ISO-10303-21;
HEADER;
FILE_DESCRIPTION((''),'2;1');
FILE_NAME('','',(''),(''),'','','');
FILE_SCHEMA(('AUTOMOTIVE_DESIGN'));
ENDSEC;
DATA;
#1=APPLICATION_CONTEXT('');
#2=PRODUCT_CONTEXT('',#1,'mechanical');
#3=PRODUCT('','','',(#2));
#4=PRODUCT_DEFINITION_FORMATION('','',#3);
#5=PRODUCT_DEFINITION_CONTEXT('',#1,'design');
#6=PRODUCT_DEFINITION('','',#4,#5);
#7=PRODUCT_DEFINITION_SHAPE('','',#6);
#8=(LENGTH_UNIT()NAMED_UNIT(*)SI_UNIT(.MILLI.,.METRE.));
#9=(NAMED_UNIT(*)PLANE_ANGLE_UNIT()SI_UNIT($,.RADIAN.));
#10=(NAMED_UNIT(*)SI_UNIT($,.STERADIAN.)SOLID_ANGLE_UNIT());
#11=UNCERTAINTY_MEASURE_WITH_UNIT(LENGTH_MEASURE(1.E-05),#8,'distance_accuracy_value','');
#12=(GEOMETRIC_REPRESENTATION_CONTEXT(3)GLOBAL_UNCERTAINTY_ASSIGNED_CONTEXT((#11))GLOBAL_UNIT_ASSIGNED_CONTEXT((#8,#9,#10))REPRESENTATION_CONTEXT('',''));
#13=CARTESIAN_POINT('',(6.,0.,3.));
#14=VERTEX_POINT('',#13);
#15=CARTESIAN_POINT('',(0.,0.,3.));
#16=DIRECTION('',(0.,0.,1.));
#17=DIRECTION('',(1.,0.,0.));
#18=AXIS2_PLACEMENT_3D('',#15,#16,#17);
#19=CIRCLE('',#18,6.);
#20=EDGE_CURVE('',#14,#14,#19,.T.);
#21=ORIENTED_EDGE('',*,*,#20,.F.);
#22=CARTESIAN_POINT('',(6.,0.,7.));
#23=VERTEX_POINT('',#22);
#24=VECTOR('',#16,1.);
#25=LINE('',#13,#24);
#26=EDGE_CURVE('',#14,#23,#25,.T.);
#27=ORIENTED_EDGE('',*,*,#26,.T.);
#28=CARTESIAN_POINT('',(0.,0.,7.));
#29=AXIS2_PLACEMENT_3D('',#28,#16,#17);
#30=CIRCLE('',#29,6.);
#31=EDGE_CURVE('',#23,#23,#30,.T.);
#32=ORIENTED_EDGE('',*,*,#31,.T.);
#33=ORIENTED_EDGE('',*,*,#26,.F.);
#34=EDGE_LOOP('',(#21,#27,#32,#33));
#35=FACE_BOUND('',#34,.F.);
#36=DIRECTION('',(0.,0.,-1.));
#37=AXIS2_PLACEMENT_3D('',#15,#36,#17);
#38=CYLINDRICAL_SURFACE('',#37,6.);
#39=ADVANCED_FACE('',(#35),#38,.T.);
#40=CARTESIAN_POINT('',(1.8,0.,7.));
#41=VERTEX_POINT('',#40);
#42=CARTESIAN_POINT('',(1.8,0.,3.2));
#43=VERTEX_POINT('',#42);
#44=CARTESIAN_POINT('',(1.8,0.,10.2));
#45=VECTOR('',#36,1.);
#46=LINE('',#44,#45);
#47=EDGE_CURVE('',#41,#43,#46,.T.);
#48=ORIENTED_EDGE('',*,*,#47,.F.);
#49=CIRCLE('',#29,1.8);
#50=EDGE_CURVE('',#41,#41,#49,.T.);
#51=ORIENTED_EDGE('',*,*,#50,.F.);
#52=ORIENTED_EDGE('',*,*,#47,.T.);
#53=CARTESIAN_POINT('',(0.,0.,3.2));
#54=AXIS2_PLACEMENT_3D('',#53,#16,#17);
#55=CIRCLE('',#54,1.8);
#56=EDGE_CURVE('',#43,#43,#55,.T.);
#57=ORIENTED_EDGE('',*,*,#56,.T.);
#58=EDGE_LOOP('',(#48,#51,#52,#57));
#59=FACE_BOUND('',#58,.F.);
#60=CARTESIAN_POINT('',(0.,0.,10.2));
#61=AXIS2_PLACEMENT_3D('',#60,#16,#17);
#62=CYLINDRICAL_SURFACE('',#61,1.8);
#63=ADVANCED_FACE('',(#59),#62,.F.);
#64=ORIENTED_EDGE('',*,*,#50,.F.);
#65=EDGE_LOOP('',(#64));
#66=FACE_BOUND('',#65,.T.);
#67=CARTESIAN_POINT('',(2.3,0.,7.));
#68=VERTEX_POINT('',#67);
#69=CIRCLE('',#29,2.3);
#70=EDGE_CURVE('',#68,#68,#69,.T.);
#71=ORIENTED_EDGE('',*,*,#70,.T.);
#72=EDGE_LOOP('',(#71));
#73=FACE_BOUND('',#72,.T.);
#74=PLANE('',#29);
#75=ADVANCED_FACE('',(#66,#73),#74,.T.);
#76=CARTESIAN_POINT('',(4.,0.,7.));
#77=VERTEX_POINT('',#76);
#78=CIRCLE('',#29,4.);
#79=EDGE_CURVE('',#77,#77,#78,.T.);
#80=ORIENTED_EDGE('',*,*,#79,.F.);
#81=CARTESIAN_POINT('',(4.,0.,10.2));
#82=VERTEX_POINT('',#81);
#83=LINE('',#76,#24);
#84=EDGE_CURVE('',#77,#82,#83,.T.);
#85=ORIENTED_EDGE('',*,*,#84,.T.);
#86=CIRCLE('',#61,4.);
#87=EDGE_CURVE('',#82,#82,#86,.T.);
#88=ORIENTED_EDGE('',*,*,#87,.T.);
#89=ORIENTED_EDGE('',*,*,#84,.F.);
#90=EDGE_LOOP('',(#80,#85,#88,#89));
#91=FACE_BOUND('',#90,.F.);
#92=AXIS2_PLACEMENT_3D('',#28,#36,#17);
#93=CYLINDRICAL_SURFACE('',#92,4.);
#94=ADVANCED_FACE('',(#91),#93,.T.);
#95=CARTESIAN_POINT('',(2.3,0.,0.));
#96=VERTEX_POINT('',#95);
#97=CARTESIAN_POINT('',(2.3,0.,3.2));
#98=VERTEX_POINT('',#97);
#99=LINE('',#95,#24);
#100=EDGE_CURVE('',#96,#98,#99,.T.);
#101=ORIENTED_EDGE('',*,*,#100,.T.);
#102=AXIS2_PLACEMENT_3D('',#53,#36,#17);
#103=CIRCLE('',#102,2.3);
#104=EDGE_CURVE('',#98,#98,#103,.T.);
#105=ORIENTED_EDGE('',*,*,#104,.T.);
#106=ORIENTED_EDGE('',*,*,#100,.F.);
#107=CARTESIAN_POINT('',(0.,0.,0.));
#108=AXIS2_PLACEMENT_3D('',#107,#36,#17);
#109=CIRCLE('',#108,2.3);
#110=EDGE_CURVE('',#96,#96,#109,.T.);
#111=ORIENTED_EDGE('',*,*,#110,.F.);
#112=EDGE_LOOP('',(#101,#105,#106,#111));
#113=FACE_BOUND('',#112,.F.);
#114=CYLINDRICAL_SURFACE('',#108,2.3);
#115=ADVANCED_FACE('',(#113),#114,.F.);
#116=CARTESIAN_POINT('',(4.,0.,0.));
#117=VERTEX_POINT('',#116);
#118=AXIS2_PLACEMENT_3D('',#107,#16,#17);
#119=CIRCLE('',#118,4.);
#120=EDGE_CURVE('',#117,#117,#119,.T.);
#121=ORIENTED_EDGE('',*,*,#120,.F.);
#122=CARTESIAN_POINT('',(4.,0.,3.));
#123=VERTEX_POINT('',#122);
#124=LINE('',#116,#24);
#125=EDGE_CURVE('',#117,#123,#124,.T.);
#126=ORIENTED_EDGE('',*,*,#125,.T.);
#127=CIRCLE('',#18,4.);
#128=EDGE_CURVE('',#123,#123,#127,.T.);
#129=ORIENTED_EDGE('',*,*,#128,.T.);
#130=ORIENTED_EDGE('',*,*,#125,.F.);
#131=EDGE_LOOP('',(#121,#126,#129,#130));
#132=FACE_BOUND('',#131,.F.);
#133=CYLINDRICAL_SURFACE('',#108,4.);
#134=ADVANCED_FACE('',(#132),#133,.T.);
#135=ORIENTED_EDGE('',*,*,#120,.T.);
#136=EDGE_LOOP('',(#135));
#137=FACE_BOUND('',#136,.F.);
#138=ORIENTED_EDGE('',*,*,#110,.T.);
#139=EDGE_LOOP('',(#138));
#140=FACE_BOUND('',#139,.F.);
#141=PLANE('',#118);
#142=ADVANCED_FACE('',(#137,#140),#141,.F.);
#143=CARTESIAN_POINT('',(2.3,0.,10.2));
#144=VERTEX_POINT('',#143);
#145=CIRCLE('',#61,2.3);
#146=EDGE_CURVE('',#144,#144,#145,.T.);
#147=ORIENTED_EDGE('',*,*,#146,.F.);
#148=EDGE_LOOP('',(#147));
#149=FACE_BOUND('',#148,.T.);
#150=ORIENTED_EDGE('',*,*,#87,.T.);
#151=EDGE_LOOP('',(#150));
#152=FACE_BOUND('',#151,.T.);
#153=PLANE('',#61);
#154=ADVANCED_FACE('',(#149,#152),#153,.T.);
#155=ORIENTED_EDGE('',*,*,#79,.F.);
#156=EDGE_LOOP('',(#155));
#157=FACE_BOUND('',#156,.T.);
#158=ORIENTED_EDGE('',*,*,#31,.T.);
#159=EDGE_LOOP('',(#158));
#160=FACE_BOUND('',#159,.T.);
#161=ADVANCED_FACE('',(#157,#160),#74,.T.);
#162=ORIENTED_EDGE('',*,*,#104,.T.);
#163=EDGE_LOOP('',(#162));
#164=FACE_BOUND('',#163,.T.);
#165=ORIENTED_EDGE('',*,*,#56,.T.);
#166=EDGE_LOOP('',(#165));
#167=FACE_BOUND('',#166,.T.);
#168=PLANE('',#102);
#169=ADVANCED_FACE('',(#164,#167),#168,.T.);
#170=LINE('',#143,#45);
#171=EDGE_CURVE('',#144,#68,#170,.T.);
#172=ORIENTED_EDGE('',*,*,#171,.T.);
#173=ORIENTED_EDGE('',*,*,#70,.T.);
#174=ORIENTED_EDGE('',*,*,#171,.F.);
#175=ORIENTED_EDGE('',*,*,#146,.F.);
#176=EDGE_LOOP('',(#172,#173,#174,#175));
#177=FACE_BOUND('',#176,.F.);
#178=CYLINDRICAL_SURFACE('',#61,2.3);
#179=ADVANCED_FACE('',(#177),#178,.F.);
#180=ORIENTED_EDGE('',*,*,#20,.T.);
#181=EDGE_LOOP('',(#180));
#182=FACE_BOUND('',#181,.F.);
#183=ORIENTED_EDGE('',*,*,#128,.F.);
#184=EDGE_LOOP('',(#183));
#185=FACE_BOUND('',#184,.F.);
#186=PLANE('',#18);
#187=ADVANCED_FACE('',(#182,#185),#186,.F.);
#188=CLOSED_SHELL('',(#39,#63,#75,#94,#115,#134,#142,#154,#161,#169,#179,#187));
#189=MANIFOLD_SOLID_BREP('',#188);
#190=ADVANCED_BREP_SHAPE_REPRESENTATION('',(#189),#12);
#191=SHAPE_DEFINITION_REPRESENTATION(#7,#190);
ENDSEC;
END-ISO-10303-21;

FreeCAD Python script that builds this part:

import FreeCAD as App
import Part
import Sketcher

V = App.Vector
Q = App.Units.Quantity

doc = App.newDocument("Part")
body = doc.addObject("PartDesign::Body", "Body")

# Sketch on XY plane
sketch1 = body.newObject("Sketcher::SketchObject", "Sketch")
sketch1.AttachmentSupport = (doc.getObject("XY_Plane"), [""])
sketch1.MapMode = "FlatFace"
sketch1.addGeometry(Part.Circle(V(0, 0, 0), V(0, 0, 1), 4), False)
sketch1.addConstraint([
    Sketcher.Constraint("Coincident", 0, 3, -1, 1),
    Sketcher.Constraint("Diameter", 0, Q("8 mm")),
])
pad1 = body.newObject("PartDesign::Pad", "Pad")
pad1.Profile = sketch1
pad1.Length = 3

# Sketch on XY plane
sketch2 = body.newObject("Sketcher::SketchObject", "Sketch001")
sketch2.AttachmentSupport = (doc.getObject("XY_Plane"), [""])
sketch2.MapMode = "FlatFace"
sketch2.AttachmentOffset = App.Placement(V(0, 0, 3), App.Rotation())
sketch2.addGeometry(Part.Circle(V(0, 0, 0), V(0, 0, 1), 6), False)
sketch2.addConstraint([
    Sketcher.Constraint("Coincident", 0, 3, -1, 1),
    Sketcher.Constraint("Diameter", 0, Q("12 mm")),
])
pad2 = body.newObject("PartDesign::Pad", "Pad001")
pad2.Profile = sketch2
pad2.Length = 4

# Sketch on XY plane
sketch3 = body.newObject("Sketcher::SketchObject", "Sketch002")
sketch3.AttachmentSupport = (doc.getObject("XY_Plane"), [""])
sketch3.MapMode = "FlatFace"
sketch3.AttachmentOffset = App.Placement(V(0, 0, 7), App.Rotation())
sketch3.addGeometry(Part.Circle(V(0, 0, 0), V(0, 0, 1), 4), False)
sketch3.addConstraint([
    Sketcher.Constraint("Coincident", 0, 3, -1, 1),
    Sketcher.Constraint("Diameter", 0, Q("8 mm")),
])
pad3 = body.newObject("PartDesign::Pad", "Pad002")
pad3.Profile = sketch3
pad3.Length = 3.2

# Sketch on XY plane
sketch4 = body.newObject("Sketcher::SketchObject", "Sketch003")
sketch4.AttachmentSupport = (doc.getObject("XY_Plane"), [""])
sketch4.MapMode = "FlatFace"
sketch4.AttachmentOffset = App.Placement(V(0, 0, 10.2), App.Rotation())
sketch4.addGeometry(Part.Circle(V(0, 0, 0), V(0, 0, 1), 1.8), False)
sketch4.addConstraint([
    Sketcher.Constraint("Coincident", 0, 3, -1, 1),
    Sketcher.Constraint("Diameter", 0, Q("3.6 mm")),
])
pocket1 = body.newObject("PartDesign::Pocket", "Pocket")
pocket1.Profile = sketch4
pocket1.Type = "ThroughAll"

# Sketch on XY plane
sketch5 = body.newObject("Sketcher::SketchObject", "Sketch004")
sketch5.AttachmentSupport = (doc.getObject("XY_Plane"), [""])
sketch5.MapMode = "FlatFace"
sketch5.addGeometry(Part.Circle(V(0, 0, 0), V(0, 0, 1), 2.3), False)
sketch5.addConstraint([
    Sketcher.Constraint("Coincident", 0, 3, -1, 1),
    Sketcher.Constraint("Diameter", 0, Q("4.6 mm")),
])
pocket2 = body.newObject("PartDesign::Pocket", "Pocket001")
pocket2.Profile = sketch5
pocket2.Length = 3.2
pocket2.Reversed = True

# Sketch on XY plane
sketch6 = body.newObject("Sketcher::SketchObject", "Sketch005")
sketch6.AttachmentSupport = (doc.getObject("XY_Plane"), [""])
sketch6.MapMode = "FlatFace"
sketch6.AttachmentOffset = App.Placement(V(0, 0, 10.2), App.Rotation())
sketch6.addGeometry(Part.Circle(V(0, 0, 0), V(0, 0, 1), 2.3), False)
sketch6.addConstraint([
    Sketcher.Constraint("Coincident", 0, 3, -1, 1),
    Sketcher.Constraint("Diameter", 0, Q("4.6 mm")),
])
pocket3 = body.newObject("PartDesign::Pocket", "Pocket002")
pocket3.Profile = sketch6
pocket3.Length = 3.2

doc.recompute()
